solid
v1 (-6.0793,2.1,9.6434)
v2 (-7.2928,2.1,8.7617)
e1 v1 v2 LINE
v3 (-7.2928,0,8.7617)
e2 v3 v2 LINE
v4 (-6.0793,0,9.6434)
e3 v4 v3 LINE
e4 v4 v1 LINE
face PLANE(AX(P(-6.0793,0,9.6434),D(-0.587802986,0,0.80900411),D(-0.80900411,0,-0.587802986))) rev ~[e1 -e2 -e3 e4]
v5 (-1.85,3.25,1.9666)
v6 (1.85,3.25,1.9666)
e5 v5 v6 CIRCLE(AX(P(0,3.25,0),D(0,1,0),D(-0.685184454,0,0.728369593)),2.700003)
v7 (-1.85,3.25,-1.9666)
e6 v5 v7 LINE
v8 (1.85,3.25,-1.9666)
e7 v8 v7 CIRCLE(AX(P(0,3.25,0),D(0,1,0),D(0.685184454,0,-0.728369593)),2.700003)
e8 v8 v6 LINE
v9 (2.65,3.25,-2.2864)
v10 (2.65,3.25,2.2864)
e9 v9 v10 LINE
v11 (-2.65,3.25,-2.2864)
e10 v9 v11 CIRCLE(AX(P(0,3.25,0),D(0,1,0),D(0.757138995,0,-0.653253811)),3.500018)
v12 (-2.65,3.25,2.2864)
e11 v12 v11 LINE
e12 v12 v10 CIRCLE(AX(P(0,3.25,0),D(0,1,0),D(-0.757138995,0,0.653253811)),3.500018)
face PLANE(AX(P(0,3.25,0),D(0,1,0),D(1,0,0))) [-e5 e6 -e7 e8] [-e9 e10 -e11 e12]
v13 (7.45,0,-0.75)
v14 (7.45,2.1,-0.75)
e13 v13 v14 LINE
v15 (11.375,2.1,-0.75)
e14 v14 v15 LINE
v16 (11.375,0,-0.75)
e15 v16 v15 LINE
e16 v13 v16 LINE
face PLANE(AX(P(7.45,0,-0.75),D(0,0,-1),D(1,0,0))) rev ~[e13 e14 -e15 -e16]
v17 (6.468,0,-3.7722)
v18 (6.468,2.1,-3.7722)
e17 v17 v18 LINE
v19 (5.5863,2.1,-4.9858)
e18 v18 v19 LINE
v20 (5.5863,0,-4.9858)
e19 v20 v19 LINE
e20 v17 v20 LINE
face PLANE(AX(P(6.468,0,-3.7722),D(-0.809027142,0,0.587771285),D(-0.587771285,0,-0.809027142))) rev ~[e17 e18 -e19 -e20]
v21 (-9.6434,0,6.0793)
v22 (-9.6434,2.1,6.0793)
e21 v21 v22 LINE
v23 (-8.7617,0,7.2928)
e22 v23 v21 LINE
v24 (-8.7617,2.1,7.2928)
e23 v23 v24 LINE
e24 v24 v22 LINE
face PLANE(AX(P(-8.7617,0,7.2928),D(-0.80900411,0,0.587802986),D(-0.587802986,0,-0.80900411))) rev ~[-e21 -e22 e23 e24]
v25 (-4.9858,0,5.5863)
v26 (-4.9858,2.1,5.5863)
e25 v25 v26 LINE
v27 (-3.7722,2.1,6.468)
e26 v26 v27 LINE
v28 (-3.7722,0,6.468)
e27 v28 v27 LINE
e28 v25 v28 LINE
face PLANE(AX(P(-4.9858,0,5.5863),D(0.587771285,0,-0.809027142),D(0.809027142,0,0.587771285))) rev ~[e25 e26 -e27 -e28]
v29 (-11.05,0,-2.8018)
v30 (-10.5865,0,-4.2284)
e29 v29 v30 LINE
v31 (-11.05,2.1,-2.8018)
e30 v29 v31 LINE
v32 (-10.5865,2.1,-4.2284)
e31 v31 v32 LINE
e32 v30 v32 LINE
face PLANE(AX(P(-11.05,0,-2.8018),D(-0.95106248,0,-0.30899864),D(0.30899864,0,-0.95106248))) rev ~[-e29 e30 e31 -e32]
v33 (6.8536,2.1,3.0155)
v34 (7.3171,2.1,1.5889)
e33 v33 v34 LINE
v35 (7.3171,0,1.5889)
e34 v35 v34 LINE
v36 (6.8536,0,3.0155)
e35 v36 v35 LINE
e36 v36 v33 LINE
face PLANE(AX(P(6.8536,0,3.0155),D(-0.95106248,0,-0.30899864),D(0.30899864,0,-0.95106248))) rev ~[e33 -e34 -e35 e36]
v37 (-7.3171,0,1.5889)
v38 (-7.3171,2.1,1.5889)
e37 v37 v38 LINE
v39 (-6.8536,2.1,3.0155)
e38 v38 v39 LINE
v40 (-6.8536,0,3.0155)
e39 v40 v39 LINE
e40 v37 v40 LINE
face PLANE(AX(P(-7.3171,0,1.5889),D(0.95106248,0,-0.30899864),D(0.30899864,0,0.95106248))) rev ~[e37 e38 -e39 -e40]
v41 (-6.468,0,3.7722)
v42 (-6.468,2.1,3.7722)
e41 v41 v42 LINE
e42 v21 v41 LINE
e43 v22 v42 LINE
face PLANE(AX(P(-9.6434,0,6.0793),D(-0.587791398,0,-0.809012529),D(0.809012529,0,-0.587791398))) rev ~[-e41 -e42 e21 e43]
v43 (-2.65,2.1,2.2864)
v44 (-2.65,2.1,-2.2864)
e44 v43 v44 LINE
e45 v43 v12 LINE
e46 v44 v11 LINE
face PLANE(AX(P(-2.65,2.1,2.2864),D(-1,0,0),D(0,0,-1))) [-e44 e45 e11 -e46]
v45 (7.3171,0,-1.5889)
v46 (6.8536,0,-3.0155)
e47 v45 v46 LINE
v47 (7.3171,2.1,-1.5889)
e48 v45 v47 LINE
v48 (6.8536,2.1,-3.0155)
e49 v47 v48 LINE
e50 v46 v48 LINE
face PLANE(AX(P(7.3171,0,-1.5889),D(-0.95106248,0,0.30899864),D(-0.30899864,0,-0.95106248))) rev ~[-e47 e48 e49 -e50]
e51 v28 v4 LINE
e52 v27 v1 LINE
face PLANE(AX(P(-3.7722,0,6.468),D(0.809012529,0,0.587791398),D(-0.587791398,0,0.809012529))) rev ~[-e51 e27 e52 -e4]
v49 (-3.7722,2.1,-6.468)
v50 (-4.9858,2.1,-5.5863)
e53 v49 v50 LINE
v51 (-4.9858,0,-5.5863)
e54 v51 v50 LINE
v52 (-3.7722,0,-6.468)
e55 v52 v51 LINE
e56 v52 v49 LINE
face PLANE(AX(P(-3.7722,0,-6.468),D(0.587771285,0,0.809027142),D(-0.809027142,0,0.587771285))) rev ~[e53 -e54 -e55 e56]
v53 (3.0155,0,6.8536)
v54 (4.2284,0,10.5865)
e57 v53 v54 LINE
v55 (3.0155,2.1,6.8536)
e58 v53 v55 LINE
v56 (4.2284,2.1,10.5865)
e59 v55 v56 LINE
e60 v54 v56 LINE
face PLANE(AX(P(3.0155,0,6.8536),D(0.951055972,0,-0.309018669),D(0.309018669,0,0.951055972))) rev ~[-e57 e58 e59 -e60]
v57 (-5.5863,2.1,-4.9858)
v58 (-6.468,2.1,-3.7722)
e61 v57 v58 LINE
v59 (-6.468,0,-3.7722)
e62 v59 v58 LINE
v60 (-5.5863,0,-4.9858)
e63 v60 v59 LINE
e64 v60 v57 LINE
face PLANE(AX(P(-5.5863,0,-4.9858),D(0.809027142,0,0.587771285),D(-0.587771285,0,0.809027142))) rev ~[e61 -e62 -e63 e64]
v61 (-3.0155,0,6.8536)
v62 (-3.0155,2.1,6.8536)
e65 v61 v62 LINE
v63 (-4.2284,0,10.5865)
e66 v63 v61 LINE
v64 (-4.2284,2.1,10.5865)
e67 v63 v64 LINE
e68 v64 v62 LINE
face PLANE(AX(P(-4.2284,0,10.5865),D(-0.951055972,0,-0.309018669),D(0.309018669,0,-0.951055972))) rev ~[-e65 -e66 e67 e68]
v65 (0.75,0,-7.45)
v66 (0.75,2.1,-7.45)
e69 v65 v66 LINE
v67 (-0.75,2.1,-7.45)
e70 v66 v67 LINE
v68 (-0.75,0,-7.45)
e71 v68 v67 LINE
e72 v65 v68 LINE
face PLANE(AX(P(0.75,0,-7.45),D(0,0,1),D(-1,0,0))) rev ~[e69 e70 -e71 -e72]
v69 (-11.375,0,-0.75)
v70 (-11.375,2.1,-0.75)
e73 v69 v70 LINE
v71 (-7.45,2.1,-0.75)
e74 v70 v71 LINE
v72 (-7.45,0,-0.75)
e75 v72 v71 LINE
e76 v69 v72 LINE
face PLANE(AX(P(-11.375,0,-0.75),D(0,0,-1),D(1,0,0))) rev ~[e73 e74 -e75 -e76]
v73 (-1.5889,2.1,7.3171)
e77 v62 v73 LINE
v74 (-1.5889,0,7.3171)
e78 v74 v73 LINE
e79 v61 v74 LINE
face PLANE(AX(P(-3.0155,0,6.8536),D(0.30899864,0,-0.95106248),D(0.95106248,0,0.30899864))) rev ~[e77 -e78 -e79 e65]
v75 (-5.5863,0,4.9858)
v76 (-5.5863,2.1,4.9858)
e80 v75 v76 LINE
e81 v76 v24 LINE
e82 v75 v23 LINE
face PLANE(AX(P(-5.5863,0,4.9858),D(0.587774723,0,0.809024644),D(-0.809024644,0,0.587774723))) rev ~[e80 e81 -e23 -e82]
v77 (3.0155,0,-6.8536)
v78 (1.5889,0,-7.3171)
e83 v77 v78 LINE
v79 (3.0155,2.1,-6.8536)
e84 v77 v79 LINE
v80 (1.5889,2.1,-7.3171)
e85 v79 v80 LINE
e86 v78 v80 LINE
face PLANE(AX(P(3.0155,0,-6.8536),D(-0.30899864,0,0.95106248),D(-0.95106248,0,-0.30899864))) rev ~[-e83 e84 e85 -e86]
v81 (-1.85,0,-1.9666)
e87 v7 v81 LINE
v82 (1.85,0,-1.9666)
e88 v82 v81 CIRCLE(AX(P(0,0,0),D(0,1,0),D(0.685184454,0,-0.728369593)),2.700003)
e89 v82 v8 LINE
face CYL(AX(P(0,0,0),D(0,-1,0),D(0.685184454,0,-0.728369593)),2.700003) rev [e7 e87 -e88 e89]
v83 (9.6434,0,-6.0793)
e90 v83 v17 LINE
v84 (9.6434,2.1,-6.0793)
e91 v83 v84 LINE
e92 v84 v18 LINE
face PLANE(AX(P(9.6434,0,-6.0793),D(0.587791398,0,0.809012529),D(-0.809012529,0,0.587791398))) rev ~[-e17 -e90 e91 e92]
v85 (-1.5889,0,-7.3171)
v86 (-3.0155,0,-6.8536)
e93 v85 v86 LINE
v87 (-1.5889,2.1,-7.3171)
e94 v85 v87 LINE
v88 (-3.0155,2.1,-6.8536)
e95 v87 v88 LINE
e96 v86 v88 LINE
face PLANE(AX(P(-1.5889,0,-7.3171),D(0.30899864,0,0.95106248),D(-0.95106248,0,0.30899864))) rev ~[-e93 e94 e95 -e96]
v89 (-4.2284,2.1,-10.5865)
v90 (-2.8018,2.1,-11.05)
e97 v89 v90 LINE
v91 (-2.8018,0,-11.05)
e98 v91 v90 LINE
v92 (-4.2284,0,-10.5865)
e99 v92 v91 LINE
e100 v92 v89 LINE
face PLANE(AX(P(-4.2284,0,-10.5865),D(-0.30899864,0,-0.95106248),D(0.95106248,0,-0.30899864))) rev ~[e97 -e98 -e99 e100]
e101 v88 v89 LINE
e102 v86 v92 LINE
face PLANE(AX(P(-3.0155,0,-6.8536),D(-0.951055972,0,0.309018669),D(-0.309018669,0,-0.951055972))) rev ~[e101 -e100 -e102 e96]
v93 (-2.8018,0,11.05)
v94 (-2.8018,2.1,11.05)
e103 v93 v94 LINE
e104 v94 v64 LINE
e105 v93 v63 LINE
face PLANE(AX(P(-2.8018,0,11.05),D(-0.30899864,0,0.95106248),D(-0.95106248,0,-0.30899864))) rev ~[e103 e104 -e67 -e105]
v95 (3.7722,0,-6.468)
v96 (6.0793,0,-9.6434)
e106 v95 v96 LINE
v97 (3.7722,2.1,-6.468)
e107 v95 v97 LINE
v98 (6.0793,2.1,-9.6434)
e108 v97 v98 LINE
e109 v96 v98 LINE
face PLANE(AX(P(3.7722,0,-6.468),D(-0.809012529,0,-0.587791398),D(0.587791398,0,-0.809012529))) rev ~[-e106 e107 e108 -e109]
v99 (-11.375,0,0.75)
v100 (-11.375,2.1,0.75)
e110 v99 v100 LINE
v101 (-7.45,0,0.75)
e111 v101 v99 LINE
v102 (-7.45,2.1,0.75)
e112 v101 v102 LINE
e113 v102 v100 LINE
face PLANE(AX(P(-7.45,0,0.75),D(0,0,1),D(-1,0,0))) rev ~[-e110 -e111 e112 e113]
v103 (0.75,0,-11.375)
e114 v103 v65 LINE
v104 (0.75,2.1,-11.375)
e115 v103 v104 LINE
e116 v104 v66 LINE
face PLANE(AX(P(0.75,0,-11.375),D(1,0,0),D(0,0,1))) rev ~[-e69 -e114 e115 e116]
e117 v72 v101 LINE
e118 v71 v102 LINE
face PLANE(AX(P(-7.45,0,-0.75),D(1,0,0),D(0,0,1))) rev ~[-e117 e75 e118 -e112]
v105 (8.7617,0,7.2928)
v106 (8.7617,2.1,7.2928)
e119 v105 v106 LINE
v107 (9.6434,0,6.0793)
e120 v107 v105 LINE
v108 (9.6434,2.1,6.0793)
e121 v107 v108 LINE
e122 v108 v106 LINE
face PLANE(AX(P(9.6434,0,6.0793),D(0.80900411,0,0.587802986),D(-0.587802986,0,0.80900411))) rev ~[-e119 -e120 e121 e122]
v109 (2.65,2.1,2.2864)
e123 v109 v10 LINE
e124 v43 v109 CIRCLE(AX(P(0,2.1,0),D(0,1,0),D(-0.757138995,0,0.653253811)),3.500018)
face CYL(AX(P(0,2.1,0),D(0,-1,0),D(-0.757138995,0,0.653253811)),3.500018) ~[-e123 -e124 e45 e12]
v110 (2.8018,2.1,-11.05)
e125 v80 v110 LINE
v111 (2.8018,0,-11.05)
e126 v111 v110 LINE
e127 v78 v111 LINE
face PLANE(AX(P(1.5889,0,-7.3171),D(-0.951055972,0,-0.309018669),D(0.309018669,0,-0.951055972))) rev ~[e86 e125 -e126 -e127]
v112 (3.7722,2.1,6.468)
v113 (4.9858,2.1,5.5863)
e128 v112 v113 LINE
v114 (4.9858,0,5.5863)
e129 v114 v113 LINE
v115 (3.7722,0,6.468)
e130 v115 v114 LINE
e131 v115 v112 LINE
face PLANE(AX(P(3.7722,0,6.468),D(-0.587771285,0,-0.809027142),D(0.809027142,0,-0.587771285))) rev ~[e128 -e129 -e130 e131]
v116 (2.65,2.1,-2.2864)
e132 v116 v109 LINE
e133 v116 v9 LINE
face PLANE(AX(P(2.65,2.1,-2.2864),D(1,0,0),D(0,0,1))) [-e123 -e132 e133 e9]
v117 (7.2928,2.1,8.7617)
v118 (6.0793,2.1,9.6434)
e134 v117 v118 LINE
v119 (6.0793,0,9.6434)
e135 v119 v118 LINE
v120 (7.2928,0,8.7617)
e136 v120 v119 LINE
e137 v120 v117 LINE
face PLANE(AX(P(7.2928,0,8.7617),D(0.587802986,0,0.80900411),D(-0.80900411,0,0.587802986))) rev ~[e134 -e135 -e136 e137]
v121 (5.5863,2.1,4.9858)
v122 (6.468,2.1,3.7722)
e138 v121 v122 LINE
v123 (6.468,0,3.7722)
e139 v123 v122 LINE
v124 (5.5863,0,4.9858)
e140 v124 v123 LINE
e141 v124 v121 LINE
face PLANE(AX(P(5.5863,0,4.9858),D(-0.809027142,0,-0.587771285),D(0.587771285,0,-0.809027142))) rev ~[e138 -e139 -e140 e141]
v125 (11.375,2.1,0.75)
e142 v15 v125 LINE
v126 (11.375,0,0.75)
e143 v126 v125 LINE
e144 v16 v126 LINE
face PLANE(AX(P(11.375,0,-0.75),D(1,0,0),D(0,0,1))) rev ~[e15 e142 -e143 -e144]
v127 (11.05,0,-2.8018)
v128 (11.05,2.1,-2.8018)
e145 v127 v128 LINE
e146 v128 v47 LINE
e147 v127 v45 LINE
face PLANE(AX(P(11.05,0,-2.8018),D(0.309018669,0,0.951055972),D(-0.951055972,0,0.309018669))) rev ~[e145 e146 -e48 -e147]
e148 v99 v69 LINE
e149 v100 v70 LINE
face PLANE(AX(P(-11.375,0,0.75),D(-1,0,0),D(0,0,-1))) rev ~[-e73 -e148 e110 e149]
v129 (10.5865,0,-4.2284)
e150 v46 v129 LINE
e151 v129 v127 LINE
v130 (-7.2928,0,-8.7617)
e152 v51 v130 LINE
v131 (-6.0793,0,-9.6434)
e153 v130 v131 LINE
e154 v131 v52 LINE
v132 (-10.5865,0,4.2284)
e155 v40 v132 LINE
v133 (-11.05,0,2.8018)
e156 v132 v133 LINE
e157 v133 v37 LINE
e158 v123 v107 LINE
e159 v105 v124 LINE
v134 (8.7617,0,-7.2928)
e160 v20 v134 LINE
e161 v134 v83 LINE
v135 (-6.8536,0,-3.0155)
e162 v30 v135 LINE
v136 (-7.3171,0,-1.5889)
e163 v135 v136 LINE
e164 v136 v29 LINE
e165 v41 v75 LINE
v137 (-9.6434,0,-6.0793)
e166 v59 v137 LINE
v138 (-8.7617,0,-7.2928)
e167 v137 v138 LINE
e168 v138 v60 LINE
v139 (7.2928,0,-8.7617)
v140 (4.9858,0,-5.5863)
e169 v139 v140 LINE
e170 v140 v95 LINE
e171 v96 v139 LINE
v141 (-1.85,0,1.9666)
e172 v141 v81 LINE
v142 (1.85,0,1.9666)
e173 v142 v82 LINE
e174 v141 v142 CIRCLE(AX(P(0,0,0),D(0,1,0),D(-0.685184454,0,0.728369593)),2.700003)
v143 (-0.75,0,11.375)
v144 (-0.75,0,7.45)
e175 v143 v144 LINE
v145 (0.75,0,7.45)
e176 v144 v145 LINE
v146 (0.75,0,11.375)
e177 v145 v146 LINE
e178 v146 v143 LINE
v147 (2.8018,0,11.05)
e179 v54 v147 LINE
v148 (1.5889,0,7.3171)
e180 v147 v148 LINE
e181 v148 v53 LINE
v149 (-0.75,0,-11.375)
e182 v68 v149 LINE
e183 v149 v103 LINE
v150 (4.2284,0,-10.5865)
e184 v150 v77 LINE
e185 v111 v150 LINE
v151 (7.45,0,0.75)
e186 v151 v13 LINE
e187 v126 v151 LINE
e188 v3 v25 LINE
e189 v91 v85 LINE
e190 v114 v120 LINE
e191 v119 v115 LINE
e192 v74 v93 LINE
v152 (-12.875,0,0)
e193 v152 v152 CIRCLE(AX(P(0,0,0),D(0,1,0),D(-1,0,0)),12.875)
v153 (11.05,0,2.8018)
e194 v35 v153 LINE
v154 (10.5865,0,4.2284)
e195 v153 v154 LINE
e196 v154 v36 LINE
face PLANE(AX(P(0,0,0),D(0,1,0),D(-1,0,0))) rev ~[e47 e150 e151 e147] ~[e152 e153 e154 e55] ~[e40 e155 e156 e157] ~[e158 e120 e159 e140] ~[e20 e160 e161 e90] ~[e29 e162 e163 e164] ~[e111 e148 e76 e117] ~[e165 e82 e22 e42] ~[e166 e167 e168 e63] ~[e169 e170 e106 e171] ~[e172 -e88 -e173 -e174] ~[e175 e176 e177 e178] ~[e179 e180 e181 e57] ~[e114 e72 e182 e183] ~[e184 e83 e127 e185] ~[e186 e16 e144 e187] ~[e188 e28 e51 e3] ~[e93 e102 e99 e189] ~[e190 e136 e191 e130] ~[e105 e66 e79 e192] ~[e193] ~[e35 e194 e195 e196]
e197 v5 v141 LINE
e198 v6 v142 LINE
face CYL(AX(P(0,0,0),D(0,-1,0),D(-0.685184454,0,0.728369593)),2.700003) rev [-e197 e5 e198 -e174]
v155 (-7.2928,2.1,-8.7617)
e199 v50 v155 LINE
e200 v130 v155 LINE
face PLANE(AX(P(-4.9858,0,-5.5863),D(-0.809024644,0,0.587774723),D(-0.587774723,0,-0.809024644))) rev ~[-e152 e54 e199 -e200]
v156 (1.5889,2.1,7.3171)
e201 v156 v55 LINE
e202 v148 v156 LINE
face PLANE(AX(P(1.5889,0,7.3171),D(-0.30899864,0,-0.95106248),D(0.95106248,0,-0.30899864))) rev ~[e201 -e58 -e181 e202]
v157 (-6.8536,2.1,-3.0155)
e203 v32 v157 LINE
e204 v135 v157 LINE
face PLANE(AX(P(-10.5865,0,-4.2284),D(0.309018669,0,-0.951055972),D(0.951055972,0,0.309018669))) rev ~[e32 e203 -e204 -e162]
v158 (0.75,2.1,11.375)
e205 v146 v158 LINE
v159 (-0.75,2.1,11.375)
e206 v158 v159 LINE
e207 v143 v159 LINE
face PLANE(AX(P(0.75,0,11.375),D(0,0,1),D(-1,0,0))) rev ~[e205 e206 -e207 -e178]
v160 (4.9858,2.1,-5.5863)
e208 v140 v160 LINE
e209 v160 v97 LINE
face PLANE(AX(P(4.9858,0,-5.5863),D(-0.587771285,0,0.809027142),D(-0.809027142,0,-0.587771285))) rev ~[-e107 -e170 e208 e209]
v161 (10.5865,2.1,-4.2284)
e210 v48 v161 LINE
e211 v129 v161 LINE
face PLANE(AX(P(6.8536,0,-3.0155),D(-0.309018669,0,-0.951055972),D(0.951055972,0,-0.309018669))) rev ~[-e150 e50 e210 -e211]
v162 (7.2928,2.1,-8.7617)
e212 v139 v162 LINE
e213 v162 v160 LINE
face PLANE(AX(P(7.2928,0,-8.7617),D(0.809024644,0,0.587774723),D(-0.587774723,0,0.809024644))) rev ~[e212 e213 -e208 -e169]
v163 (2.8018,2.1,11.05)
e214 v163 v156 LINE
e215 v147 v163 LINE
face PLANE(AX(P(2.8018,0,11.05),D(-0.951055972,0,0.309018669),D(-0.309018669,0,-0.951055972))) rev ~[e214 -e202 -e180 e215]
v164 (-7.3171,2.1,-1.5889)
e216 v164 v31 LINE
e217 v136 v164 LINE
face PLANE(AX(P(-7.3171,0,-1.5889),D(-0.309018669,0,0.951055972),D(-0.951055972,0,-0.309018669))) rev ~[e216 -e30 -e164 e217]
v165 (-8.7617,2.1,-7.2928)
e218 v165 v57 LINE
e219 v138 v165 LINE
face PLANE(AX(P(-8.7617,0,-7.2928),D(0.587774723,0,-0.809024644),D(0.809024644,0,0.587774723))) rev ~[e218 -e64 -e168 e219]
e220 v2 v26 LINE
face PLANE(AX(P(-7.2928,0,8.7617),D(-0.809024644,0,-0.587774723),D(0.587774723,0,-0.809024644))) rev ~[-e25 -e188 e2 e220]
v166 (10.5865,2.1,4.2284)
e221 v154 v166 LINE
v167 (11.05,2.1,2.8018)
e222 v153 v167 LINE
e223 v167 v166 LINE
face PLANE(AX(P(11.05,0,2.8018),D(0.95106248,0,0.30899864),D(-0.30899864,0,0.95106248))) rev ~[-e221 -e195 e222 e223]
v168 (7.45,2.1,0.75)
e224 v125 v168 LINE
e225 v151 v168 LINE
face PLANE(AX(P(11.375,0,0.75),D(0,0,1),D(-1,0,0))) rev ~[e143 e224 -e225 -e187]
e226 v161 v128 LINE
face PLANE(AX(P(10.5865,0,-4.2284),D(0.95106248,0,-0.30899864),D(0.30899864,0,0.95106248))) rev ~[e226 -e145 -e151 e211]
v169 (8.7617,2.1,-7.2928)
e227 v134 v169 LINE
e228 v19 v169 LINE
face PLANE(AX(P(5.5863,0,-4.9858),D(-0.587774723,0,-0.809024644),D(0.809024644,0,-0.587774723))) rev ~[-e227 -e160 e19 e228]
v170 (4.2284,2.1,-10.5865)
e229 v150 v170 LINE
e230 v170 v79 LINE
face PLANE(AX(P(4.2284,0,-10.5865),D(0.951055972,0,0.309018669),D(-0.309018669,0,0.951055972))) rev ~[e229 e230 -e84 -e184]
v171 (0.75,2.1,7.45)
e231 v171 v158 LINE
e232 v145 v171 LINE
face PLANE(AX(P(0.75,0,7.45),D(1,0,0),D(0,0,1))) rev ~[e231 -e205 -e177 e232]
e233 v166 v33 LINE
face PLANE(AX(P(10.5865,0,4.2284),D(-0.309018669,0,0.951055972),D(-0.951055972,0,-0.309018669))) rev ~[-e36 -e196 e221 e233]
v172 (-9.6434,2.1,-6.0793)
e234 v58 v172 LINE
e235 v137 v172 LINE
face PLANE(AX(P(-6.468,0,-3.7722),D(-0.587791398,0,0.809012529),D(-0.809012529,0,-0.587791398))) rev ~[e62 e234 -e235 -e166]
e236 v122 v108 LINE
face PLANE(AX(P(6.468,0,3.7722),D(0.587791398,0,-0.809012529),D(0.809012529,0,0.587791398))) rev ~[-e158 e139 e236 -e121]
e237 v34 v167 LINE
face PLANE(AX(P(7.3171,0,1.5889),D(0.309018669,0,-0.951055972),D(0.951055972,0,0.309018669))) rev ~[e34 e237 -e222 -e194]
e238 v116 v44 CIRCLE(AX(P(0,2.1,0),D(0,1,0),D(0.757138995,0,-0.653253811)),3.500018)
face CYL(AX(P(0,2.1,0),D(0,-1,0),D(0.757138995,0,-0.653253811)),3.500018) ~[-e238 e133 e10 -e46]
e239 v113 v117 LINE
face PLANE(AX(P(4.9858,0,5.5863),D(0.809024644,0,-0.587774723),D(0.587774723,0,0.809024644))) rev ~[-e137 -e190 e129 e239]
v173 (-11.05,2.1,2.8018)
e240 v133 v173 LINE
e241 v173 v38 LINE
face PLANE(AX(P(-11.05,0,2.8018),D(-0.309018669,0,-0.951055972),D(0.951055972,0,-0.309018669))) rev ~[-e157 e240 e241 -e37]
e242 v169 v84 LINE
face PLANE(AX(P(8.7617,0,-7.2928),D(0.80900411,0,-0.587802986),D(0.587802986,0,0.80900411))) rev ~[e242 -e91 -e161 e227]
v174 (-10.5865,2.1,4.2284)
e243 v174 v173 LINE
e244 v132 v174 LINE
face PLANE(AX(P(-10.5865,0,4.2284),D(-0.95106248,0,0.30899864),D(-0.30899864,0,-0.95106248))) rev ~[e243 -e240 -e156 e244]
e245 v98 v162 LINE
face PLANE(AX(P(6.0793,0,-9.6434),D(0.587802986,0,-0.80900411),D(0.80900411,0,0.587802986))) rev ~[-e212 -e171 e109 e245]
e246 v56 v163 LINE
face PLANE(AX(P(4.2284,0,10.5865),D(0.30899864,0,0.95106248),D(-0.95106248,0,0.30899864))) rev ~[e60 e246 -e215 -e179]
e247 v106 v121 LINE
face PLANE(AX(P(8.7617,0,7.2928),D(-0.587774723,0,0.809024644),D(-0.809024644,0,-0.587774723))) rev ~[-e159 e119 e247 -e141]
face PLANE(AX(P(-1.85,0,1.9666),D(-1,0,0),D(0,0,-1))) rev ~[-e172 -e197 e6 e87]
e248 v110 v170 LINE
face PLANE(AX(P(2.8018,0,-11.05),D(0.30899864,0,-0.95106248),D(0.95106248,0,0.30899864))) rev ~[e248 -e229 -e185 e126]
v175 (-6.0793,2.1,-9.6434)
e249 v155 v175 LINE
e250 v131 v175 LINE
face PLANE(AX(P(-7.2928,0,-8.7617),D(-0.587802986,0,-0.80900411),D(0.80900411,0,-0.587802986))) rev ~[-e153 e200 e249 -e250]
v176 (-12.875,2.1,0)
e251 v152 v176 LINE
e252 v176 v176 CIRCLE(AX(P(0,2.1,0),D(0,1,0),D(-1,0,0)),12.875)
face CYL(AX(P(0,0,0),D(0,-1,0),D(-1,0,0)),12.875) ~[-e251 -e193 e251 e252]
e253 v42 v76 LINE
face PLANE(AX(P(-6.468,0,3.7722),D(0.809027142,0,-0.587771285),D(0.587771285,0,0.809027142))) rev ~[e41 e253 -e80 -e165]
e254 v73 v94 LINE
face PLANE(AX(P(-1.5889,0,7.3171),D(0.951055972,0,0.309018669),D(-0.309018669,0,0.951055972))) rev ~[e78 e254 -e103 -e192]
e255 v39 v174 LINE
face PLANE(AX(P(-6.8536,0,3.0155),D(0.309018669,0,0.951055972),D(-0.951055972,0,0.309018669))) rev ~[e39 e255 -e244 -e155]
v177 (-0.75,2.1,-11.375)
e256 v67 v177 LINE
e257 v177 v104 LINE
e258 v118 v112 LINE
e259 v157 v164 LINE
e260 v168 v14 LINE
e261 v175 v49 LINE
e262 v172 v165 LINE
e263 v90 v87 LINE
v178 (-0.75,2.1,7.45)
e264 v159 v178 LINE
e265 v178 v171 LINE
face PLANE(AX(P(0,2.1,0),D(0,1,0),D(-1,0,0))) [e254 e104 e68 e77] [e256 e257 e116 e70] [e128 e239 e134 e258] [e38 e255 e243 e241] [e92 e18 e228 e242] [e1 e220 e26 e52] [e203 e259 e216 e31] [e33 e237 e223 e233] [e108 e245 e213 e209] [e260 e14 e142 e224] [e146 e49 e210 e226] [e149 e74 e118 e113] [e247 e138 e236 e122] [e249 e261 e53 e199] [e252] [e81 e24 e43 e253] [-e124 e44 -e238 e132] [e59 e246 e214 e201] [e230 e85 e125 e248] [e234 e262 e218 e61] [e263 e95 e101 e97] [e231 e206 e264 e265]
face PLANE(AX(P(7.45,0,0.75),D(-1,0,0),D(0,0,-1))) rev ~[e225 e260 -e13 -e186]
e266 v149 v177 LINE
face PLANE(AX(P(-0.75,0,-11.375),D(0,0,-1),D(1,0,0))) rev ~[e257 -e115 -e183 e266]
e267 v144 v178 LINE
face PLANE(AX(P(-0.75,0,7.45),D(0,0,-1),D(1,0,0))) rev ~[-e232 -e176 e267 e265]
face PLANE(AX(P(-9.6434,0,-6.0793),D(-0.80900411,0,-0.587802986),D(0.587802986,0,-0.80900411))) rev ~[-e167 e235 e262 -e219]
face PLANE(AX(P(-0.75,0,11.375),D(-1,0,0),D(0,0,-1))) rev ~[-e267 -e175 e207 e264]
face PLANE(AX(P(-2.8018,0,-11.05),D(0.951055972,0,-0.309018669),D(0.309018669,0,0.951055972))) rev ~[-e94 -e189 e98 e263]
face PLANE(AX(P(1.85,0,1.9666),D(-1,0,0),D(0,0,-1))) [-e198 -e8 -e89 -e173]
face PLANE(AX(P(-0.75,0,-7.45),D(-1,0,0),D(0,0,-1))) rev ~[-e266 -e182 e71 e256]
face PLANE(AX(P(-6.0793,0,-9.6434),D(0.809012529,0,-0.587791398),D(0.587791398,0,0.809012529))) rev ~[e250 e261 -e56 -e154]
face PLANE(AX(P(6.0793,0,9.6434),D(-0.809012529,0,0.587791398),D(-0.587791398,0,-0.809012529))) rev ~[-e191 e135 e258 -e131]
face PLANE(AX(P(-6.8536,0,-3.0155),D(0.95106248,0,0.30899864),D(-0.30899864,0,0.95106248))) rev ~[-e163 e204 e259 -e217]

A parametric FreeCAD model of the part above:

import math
import FreeCAD as App
import Part
import Sketcher
Q = App.Units.Quantity

doc = App.newDocument("Part")
params = doc.addObject("Spreadsheet::Sheet", "Params")
for row, (alias, value) in enumerate([
    ("sketch1_radius", "2.7 mm"),
    ("sketch1_diameter", "25.75 mm"),
    ("sketch1_width", "1.5 mm"),
    ("sketch1_length", "1.5 mm"),
    ("pad1_length", "2.1 mm"),
    ("sketch2_radius", "3.5 mm"),
    ("sketch2_radius2", "2.7 mm"),
    ("pad2_length", "1.15 mm"),
], start=1):
    params.set(f"A{row}", alias)
    params.set(f"B{row}", "=" + value)
    params.setAlias(f"B{row}", alias)

body = doc.addObject("PartDesign::Body", "Body")

sketch1 = body.newObject("Sketcher::SketchObject", "Sketch")
sketch1.AttachmentSupport = (doc.getObject("XZ_Plane"), [""])
sketch1.MapMode = "FlatFace"
sketch1.addGeometry(Part.Circle(App.Vector(0, 0, 0), App.Vector(0, 0, 1), 12.875), False)
sketch1.addGeometry(Part.LineSegment(App.Vector(6.0793, -9.6434, 0), App.Vector(7.2928, -8.7617, 0)), False)
sketch1.addGeometry(Part.LineSegment(App.Vector(7.2928, -8.7617, 0), App.Vector(4.9858, -5.5863, 0)), False)
sketch1.addGeometry(Part.LineSegment(App.Vector(4.9858, -5.5863, 0), App.Vector(3.7722, -6.468, 0)), False)
sketch1.addGeometry(Part.LineSegment(App.Vector(3.7722, -6.468, 0), App.Vector(6.0793, -9.6434, 0)), False)
sketch1.addGeometry(Part.LineSegment(App.Vector(2.8018, -11.05, 0), App.Vector(4.2284, -10.5865, 0)), False)
sketch1.addGeometry(Part.LineSegment(App.Vector(4.2284, -10.5865, 0), App.Vector(3.0155, -6.8536, 0)), False)
sketch1.addGeometry(Part.LineSegment(App.Vector(3.0155, -6.8536, 0), App.Vector(1.5889, -7.3171, 0)), False)
sketch1.addGeometry(Part.LineSegment(App.Vector(1.5889, -7.3171, 0), App.Vector(2.8018, -11.05, 0)), False)
sketch1.addGeometry(Part.LineSegment(App.Vector(-0.75, -11.375, 0), App.Vector(0.75, -11.375, 0)), False)
sketch1.addGeometry(Part.LineSegment(App.Vector(0.75, -11.375, 0), App.Vector(0.75, -7.45, 0)), False)
sketch1.addGeometry(Part.LineSegment(App.Vector(0.75, -7.45, 0), App.Vector(-0.75, -7.45, 0)), False)
sketch1.addGeometry(Part.LineSegment(App.Vector(-0.75, -7.45, 0), App.Vector(-0.75, -11.375, 0)), False)
sketch1.addGeometry(Part.LineSegment(App.Vector(8.7617, -7.2928, 0), App.Vector(9.6434, -6.0793, 0)), False)
sketch1.addGeometry(Part.LineSegment(App.Vector(9.6434, -6.0793, 0), App.Vector(6.468, -3.7722, 0)), False)
sketch1.addGeometry(Part.LineSegment(App.Vector(6.468, -3.7722, 0), App.Vector(5.5863, -4.9858, 0)), False)
sketch1.addGeometry(Part.LineSegment(App.Vector(5.5863, -4.9858, 0), App.Vector(8.7617, -7.2928, 0)), False)
sketch1.addGeometry(Part.LineSegment(App.Vector(10.5865, -4.2284, 0), App.Vector(11.05, -2.8018, 0)), False)
sketch1.addGeometry(Part.LineSegment(App.Vector(11.05, -2.8018, 0), App.Vector(7.3171, -1.5889, 0)), False)
sketch1.addGeometry(Part.LineSegment(App.Vector(7.3171, -1.5889, 0), App.Vector(6.8536, -3.0155, 0)), False)
sketch1.addGeometry(Part.LineSegment(App.Vector(6.8536, -3.0155, 0), App.Vector(10.5865, -4.2284, 0)), False)
sketch1.addGeometry(Part.LineSegment(App.Vector(11.375, -0.75, 0), App.Vector(11.375, 0.75, 0)), False)
sketch1.addGeometry(Part.LineSegment(App.Vector(11.375, 0.75, 0), App.Vector(7.45, 0.75, 0)), False)
sketch1.addGeometry(Part.LineSegment(App.Vector(7.45, 0.75, 0), App.Vector(7.45, -0.75, 0)), False)
sketch1.addGeometry(Part.LineSegment(App.Vector(7.45, -0.75, 0), App.Vector(11.375, -0.75, 0)), False)
sketch1.addGeometry(Part.ArcOfCircle(Part.Circle(App.Vector(0, 0, 0), App.Vector(0, 0, 1), 2.700003), math.radians(-133.250115), math.radians(-46.749885)), False)
sketch1.addGeometry(Part.LineSegment(App.Vector(1.85, -1.9666, 0), App.Vector(1.85, 1.9666, 0)), False)
sketch1.addGeometry(Part.ArcOfCircle(Part.Circle(App.Vector(0, 0, 0), App.Vector(0, 0, 1), 2.700003), math.radians(46.749885), math.radians(133.250115)), False)
sketch1.addGeometry(Part.LineSegment(App.Vector(-1.85, 1.9666, 0), App.Vector(-1.85, -1.9666, 0)), False)
sketch1.addGeometry(Part.LineSegment(App.Vector(-4.2284, -10.5865, 0), App.Vector(-2.8018, -11.05, 0)), False)
sketch1.addGeometry(Part.LineSegment(App.Vector(-2.8018, -11.05, 0), App.Vector(-1.5889, -7.3171, 0)), False)
sketch1.addGeometry(Part.LineSegment(App.Vector(-1.5889, -7.3171, 0), App.Vector(-3.0155, -6.8536, 0)), False)
sketch1.addGeometry(Part.LineSegment(App.Vector(-3.0155, -6.8536, 0), App.Vector(-4.2284, -10.5865, 0)), False)
sketch1.addGeometry(Part.LineSegment(App.Vector(-7.2928, -8.7617, 0), App.Vector(-6.0793, -9.6434, 0)), False)
sketch1.addGeometry(Part.LineSegment(App.Vector(-6.0793, -9.6434, 0), App.Vector(-3.7722, -6.468, 0)), False)
sketch1.addGeometry(Part.LineSegment(App.Vector(-3.7722, -6.468, 0), App.Vector(-4.9858, -5.5863, 0)), False)
sketch1.addGeometry(Part.LineSegment(App.Vector(-4.9858, -5.5863, 0), App.Vector(-7.2928, -8.7617, 0)), False)
sketch1.addGeometry(Part.LineSegment(App.Vector(-9.6434, -6.0793, 0), App.Vector(-8.7617, -7.2928, 0)), False)
sketch1.addGeometry(Part.LineSegment(App.Vector(-8.7617, -7.2928, 0), App.Vector(-5.5863, -4.9858, 0)), False)
sketch1.addGeometry(Part.LineSegment(App.Vector(-5.5863, -4.9858, 0), App.Vector(-6.468, -3.7722, 0)), False)
sketch1.addGeometry(Part.LineSegment(App.Vector(-6.468, -3.7722, 0), App.Vector(-9.6434, -6.0793, 0)), False)
sketch1.addGeometry(Part.LineSegment(App.Vector(-11.05, -2.8018, 0), App.Vector(-10.5865, -4.2284, 0)), False)
sketch1.addGeometry(Part.LineSegment(App.Vector(-10.5865, -4.2284, 0), App.Vector(-6.8536, -3.0155, 0)), False)
sketch1.addGeometry(Part.LineSegment(App.Vector(-6.8536, -3.0155, 0), App.Vector(-7.3171, -1.5889, 0)), False)
sketch1.addGeometry(Part.LineSegment(App.Vector(-7.3171, -1.5889, 0), App.Vector(-11.05, -2.8018, 0)), False)
sketch1.addGeometry(Part.LineSegment(App.Vector(-7.45, -0.75, 0), App.Vector(-7.45, 0.75, 0)), False)
sketch1.addGeometry(Part.LineSegment(App.Vector(-7.45, 0.75, 0), App.Vector(-11.375, 0.75, 0)), False)
sketch1.addGeometry(Part.LineSegment(App.Vector(-11.375, 0.75, 0), App.Vector(-11.375, -0.75, 0)), False)
sketch1.addGeometry(Part.LineSegment(App.Vector(-11.375, -0.75, 0), App.Vector(-7.45, -0.75, 0)), False)
sketch1.addGeometry(Part.LineSegment(App.Vector(11.05, 2.8018, 0), App.Vector(10.5865, 4.2284, 0)), False)
sketch1.addGeometry(Part.LineSegment(App.Vector(10.5865, 4.2284, 0), App.Vector(6.8536, 3.0155, 0)), False)
sketch1.addGeometry(Part.LineSegment(App.Vector(6.8536, 3.0155, 0), App.Vector(7.3171, 1.5889, 0)), False)
sketch1.addGeometry(Part.LineSegment(App.Vector(7.3171, 1.5889, 0), App.Vector(11.05, 2.8018, 0)), False)
sketch1.addGeometry(Part.LineSegment(App.Vector(9.6434, 6.0793, 0), App.Vector(8.7617, 7.2928, 0)), False)
sketch1.addGeometry(Part.LineSegment(App.Vector(8.7617, 7.2928, 0), App.Vector(5.5863, 4.9858, 0)), False)
sketch1.addGeometry(Part.LineSegment(App.Vector(5.5863, 4.9858, 0), App.Vector(6.468, 3.7722, 0)), False)
sketch1.addGeometry(Part.LineSegment(App.Vector(6.468, 3.7722, 0), App.Vector(9.6434, 6.0793, 0)), False)
sketch1.addGeometry(Part.LineSegment(App.Vector(7.2928, 8.7617, 0), App.Vector(6.0793, 9.6434, 0)), False)
sketch1.addGeometry(Part.LineSegment(App.Vector(6.0793, 9.6434, 0), App.Vector(3.7722, 6.468, 0)), False)
sketch1.addGeometry(Part.LineSegment(App.Vector(3.7722, 6.468, 0), App.Vector(4.9858, 5.5863, 0)), False)
sketch1.addGeometry(Part.LineSegment(App.Vector(4.9858, 5.5863, 0), App.Vector(7.2928, 8.7617, 0)), False)
sketch1.addGeometry(Part.LineSegment(App.Vector(4.2284, 10.5865, 0), App.Vector(2.8018, 11.05, 0)), False)
sketch1.addGeometry(Part.LineSegment(App.Vector(2.8018, 11.05, 0), App.Vector(1.5889, 7.3171, 0)), False)
sketch1.addGeometry(Part.LineSegment(App.Vector(1.5889, 7.3171, 0), App.Vector(3.0155, 6.8536, 0)), False)
sketch1.addGeometry(Part.LineSegment(App.Vector(3.0155, 6.8536, 0), App.Vector(4.2284, 10.5865, 0)), False)
sketch1.addGeometry(Part.LineSegment(App.Vector(0.75, 11.375, 0), App.Vector(-0.75, 11.375, 0)), False)
sketch1.addGeometry(Part.LineSegment(App.Vector(-0.75, 11.375, 0), App.Vector(-0.75, 7.45, 0)), False)
sketch1.addGeometry(Part.LineSegment(App.Vector(-0.75, 7.45, 0), App.Vector(0.75, 7.45, 0)), False)
sketch1.addGeometry(Part.LineSegment(App.Vector(0.75, 7.45, 0), App.Vector(0.75, 11.375, 0)), False)
sketch1.addGeometry(Part.LineSegment(App.Vector(-10.5865, 4.2284, 0), App.Vector(-11.05, 2.8018, 0)), False)
sketch1.addGeometry(Part.LineSegment(App.Vector(-11.05, 2.8018, 0), App.Vector(-7.3171, 1.5889, 0)), False)
sketch1.addGeometry(Part.LineSegment(App.Vector(-7.3171, 1.5889, 0), App.Vector(-6.8536, 3.0155, 0)), False)
sketch1.addGeometry(Part.LineSegment(App.Vector(-6.8536, 3.0155, 0), App.Vector(-10.5865, 4.2284, 0)), False)
sketch1.addGeometry(Part.LineSegment(App.Vector(-8.7617, 7.2928, 0), App.Vector(-9.6434, 6.0793, 0)), False)
sketch1.addGeometry(Part.LineSegment(App.Vector(-9.6434, 6.0793, 0), App.Vector(-6.468, 3.7722, 0)), False)
sketch1.addGeometry(Part.LineSegment(App.Vector(-6.468, 3.7722, 0), App.Vector(-5.5863, 4.9858, 0)), False)
sketch1.addGeometry(Part.LineSegment(App.Vector(-5.5863, 4.9858, 0), App.Vector(-8.7617, 7.2928, 0)), False)
sketch1.addGeometry(Part.LineSegment(App.Vector(-2.8018, 11.05, 0), App.Vector(-4.2284, 10.5865, 0)), False)
sketch1.addGeometry(Part.LineSegment(App.Vector(-4.2284, 10.5865, 0), App.Vector(-3.0155, 6.8536, 0)), False)
sketch1.addGeometry(Part.LineSegment(App.Vector(-3.0155, 6.8536, 0), App.Vector(-1.5889, 7.3171, 0)), False)
sketch1.addGeometry(Part.LineSegment(App.Vector(-1.5889, 7.3171, 0), App.Vector(-2.8018, 11.05, 0)), False)
sketch1.addGeometry(Part.LineSegment(App.Vector(-6.0793, 9.6434, 0), App.Vector(-7.2928, 8.7617, 0)), False)
sketch1.addGeometry(Part.LineSegment(App.Vector(-7.2928, 8.7617, 0), App.Vector(-4.9858, 5.5863, 0)), False)
sketch1.addGeometry(Part.LineSegment(App.Vector(-4.9858, 5.5863, 0), App.Vector(-3.7722, 6.468, 0)), False)
sketch1.addGeometry(Part.LineSegment(App.Vector(-3.7722, 6.468, 0), App.Vector(-6.0793, 9.6434, 0)), False)
sketch1.addConstraint(Sketcher.Constraint("Coincident", 1, 2, 2, 1))
sketch1.addConstraint(Sketcher.Constraint("Coincident", 2, 2, 3, 1))
sketch1.addConstraint(Sketcher.Constraint("Coincident", 3, 2, 4, 1))
sketch1.addConstraint(Sketcher.Constraint("Coincident", 4, 2, 1, 1))
sketch1.addConstraint(Sketcher.Constraint("Coincident", 5, 2, 6, 1))
sketch1.addConstraint(Sketcher.Constraint("Coincident", 6, 2, 7, 1))
sketch1.addConstraint(Sketcher.Constraint("Coincident", 7, 2, 8, 1))
sketch1.addConstraint(Sketcher.Constraint("Coincident", 8, 2, 5, 1))
sketch1.addConstraint(Sketcher.Constraint("Coincident", 9, 2, 10, 1))
sketch1.addConstraint(Sketcher.Constraint("Coincident", 10, 2, 11, 1))
sketch1.addConstraint(Sketcher.Constraint("Coincident", 11, 2, 12, 1))
sketch1.addConstraint(Sketcher.Constraint("Coincident", 12, 2, 9, 1))
sketch1.addConstraint(Sketcher.Constraint("Coincident", 13, 2, 14, 1))
sketch1.addConstraint(Sketcher.Constraint("Coincident", 14, 2, 15, 1))
sketch1.addConstraint(Sketcher.Constraint("Coincident", 15, 2, 16, 1))
sketch1.addConstraint(Sketcher.Constraint("Coincident", 16, 2, 13, 1))
sketch1.addConstraint(Sketcher.Constraint("Coincident", 17, 2, 18, 1))
sketch1.addConstraint(Sketcher.Constraint("Coincident", 18, 2, 19, 1))
sketch1.addConstraint(Sketcher.Constraint("Coincident", 19, 2, 20, 1))
sketch1.addConstraint(Sketcher.Constraint("Coincident", 20, 2, 17, 1))
sketch1.addConstraint(Sketcher.Constraint("Coincident", 21, 2, 22, 1))
sketch1.addConstraint(Sketcher.Constraint("Coincident", 22, 2, 23, 1))
sketch1.addConstraint(Sketcher.Constraint("Coincident", 23, 2, 24, 1))
sketch1.addConstraint(Sketcher.Constraint("Coincident", 24, 2, 21, 1))
sketch1.addConstraint(Sketcher.Constraint("Coincident", 25, 2, 26, 1))
sketch1.addConstraint(Sketcher.Constraint("Coincident", 26, 2, 27, 1))
sketch1.addConstraint(Sketcher.Constraint("Coincident", 27, 2, 28, 1))
sketch1.addConstraint(Sketcher.Constraint("Coincident", 28, 2, 25, 1))
sketch1.addConstraint(Sketcher.Constraint("Coincident", 29, 2, 30, 1))
sketch1.addConstraint(Sketcher.Constraint("Coincident", 30, 2, 31, 1))
sketch1.addConstraint(Sketcher.Constraint("Coincident", 31, 2, 32, 1))
sketch1.addConstraint(Sketcher.Constraint("Coincident", 32, 2, 29, 1))
sketch1.addConstraint(Sketcher.Constraint("Coincident", 33, 2, 34, 1))
sketch1.addConstraint(Sketcher.Constraint("Coincident", 34, 2, 35, 1))
sketch1.addConstraint(Sketcher.Constraint("Coincident", 35, 2, 36, 1))
sketch1.addConstraint(Sketcher.Constraint("Coincident", 36, 2, 33, 1))
sketch1.addConstraint(Sketcher.Constraint("Coincident", 37, 2, 38, 1))
sketch1.addConstraint(Sketcher.Constraint("Coincident", 38, 2, 39, 1))
sketch1.addConstraint(Sketcher.Constraint("Coincident", 39, 2, 40, 1))
sketch1.addConstraint(Sketcher.Constraint("Coincident", 40, 2, 37, 1))
sketch1.addConstraint(Sketcher.Constraint("Coincident", 41, 2, 42, 1))
sketch1.addConstraint(Sketcher.Constraint("Coincident", 42, 2, 43, 1))
sketch1.addConstraint(Sketcher.Constraint("Coincident", 43, 2, 44, 1))
sketch1.addConstraint(Sketcher.Constraint("Coincident", 44, 2, 41, 1))
sketch1.addConstraint(Sketcher.Constraint("Coincident", 45, 2, 46, 1))
sketch1.addConstraint(Sketcher.Constraint("Coincident", 46, 2, 47, 1))
sketch1.addConstraint(Sketcher.Constraint("Coincident", 47, 2, 48, 1))
sketch1.addConstraint(Sketcher.Constraint("Coincident", 48, 2, 45, 1))
sketch1.addConstraint(Sketcher.Constraint("Coincident", 49, 2, 50, 1))
sketch1.addConstraint(Sketcher.Constraint("Coincident", 50, 2, 51, 1))
sketch1.addConstraint(Sketcher.Constraint("Coincident", 51, 2, 52, 1))
sketch1.addConstraint(Sketcher.Constraint("Coincident", 52, 2, 49, 1))
sketch1.addConstraint(Sketcher.Constraint("Coincident", 53, 2, 54, 1))
sketch1.addConstraint(Sketcher.Constraint("Coincident", 54, 2, 55, 1))
sketch1.addConstraint(Sketcher.Constraint("Coincident", 55, 2, 56, 1))
sketch1.addConstraint(Sketcher.Constraint("Coincident", 56, 2, 53, 1))
sketch1.addConstraint(Sketcher.Constraint("Coincident", 57, 2, 58, 1))
sketch1.addConstraint(Sketcher.Constraint("Coincident", 58, 2, 59, 1))
sketch1.addConstraint(Sketcher.Constraint("Coincident", 59, 2, 60, 1))
sketch1.addConstraint(Sketcher.Constraint("Coincident", 60, 2, 57, 1))
sketch1.addConstraint(Sketcher.Constraint("Coincident", 61, 2, 62, 1))
sketch1.addConstraint(Sketcher.Constraint("Coincident", 62, 2, 63, 1))
sketch1.addConstraint(Sketcher.Constraint("Coincident", 63, 2, 64, 1))
sketch1.addConstraint(Sketcher.Constraint("Coincident", 64, 2, 61, 1))
sketch1.addConstraint(Sketcher.Constraint("Coincident", 65, 2, 66, 1))
sketch1.addConstraint(Sketcher.Constraint("Coincident", 66, 2, 67, 1))
sketch1.addConstraint(Sketcher.Constraint("Coincident", 67, 2, 68, 1))
sketch1.addConstraint(Sketcher.Constraint("Coincident", 68, 2, 65, 1))
sketch1.addConstraint(Sketcher.Constraint("Coincident", 69, 2, 70, 1))
sketch1.addConstraint(Sketcher.Constraint("Coincident", 70, 2, 71, 1))
sketch1.addConstraint(Sketcher.Constraint("Coincident", 71, 2, 72, 1))
sketch1.addConstraint(Sketcher.Constraint("Coincident", 72, 2, 69, 1))
sketch1.addConstraint(Sketcher.Constraint("Coincident", 73, 2, 74, 1))
sketch1.addConstraint(Sketcher.Constraint("Coincident", 74, 2, 75, 1))
sketch1.addConstraint(Sketcher.Constraint("Coincident", 75, 2, 76, 1))
sketch1.addConstraint(Sketcher.Constraint("Coincident", 76, 2, 73, 1))
sketch1.addConstraint(Sketcher.Constraint("Coincident", 77, 2, 78, 1))
sketch1.addConstraint(Sketcher.Constraint("Coincident", 78, 2, 79, 1))
sketch1.addConstraint(Sketcher.Constraint("Coincident", 79, 2, 80, 1))
sketch1.addConstraint(Sketcher.Constraint("Coincident", 80, 2, 77, 1))
sketch1.addConstraint(Sketcher.Constraint("Coincident", 81, 2, 82, 1))
sketch1.addConstraint(Sketcher.Constraint("Coincident", 82, 2, 83, 1))
sketch1.addConstraint(Sketcher.Constraint("Coincident", 83, 2, 84, 1))
sketch1.addConstraint(Sketcher.Constraint("Coincident", 84, 2, 81, 1))
sketch1.addConstraint(Sketcher.Constraint("Horizontal", 9))
sketch1.addConstraint(Sketcher.Constraint("Vertical", 10))
sketch1.addConstraint(Sketcher.Constraint("Horizontal", 11))
sketch1.addConstraint(Sketcher.Constraint("Vertical", 12))
sketch1.addConstraint(Sketcher.Constraint("Vertical", 21))
sketch1.addConstraint(Sketcher.Constraint("Horizontal", 22))
sketch1.addConstraint(Sketcher.Constraint("Vertical", 23))
sketch1.addConstraint(Sketcher.Constraint("Horizontal", 24))
sketch1.addConstraint(Sketcher.Constraint("Vertical", 26))
sketch1.addConstraint(Sketcher.Constraint("Vertical", 28))
sketch1.addConstraint(Sketcher.Constraint("Vertical", 45))
sketch1.addConstraint(Sketcher.Constraint("Horizontal", 46))
sketch1.addConstraint(Sketcher.Constraint("Vertical", 47))
sketch1.addConstraint(Sketcher.Constraint("Horizontal", 48))
sketch1.addConstraint(Sketcher.Constraint("Horizontal", 65))
sketch1.addConstraint(Sketcher.Constraint("Vertical", 66))
sketch1.addConstraint(Sketcher.Constraint("Horizontal", 67))
sketch1.addConstraint(Sketcher.Constraint("Vertical", 68))
sketch1.addConstraint(Sketcher.Constraint("Coincident", 0, 3, -1, 1))
sketch1.addConstraint(Sketcher.Constraint("Coincident", 25, 3, -1, 1))
sketch1.addConstraint(Sketcher.Constraint("Coincident", 27, 3, -1, 1))
sketch1.addConstraint(Sketcher.Constraint("Equal", 25, 27))
sketch1.addConstraint(Sketcher.Constraint("Symmetric", 23, 2, 45, 2, -1, 1))
sketch1.addConstraint(Sketcher.Constraint("Symmetric", 21, 2, 47, 2, -1, 1))
sketch1.addConstraint(Sketcher.Constraint("Symmetric", 41, 2, 49, 2, -1, 1))
sketch1.addConstraint(Sketcher.Constraint("Symmetric", 42, 2, 50, 2, -1, 1))
sketch1.addConstraint(Sketcher.Constraint("Symmetric", 43, 2, 51, 2, -1, 1))
sketch1.addConstraint(Sketcher.Constraint("Symmetric", 44, 2, 52, 2, -1, 1))
sketch1.addConstraint(Sketcher.Constraint("Symmetric", 37, 2, 53, 2, -1, 1))
sketch1.addConstraint(Sketcher.Constraint("Symmetric", 38, 2, 54, 2, -1, 1))
sketch1.addConstraint(Sketcher.Constraint("Symmetric", 39, 2, 55, 2, -1, 1))
sketch1.addConstraint(Sketcher.Constraint("Symmetric", 40, 2, 56, 2, -1, 1))
sketch1.addConstraint(Sketcher.Constraint("Symmetric", 33, 2, 57, 2, -1, 1))
sketch1.addConstraint(Sketcher.Constraint("Symmetric", 34, 2, 58, 2, -1, 1))
sketch1.addConstraint(Sketcher.Constraint("Symmetric", 35, 2, 59, 2, -1, 1))
sketch1.addConstraint(Sketcher.Constraint("Symmetric", 36, 2, 60, 2, -1, 1))
sketch1.addConstraint(Sketcher.Constraint("Symmetric", 29, 2, 61, 2, -1, 1))
sketch1.addConstraint(Sketcher.Constraint("Symmetric", 30, 2, 62, 2, -1, 1))
sketch1.addConstraint(Sketcher.Constraint("Symmetric", 31, 2, 63, 2, -1, 1))
sketch1.addConstraint(Sketcher.Constraint("Symmetric", 32, 2, 64, 2, -1, 1))
sketch1.addConstraint(Sketcher.Constraint("Symmetric", 9, 2, 65, 2, -1, 1))
sketch1.addConstraint(Sketcher.Constraint("Symmetric", 11, 2, 67, 2, -1, 1))
sketch1.addConstraint(Sketcher.Constraint("Symmetric", 17, 2, 69, 2, -1, 1))
sketch1.addConstraint(Sketcher.Constraint("Symmetric", 18, 2, 70, 2, -1, 1))
sketch1.addConstraint(Sketcher.Constraint("Symmetric", 19, 2, 71, 2, -1, 1))
sketch1.addConstraint(Sketcher.Constraint("Symmetric", 20, 2, 72, 2, -1, 1))
sketch1.addConstraint(Sketcher.Constraint("Symmetric", 13, 2, 73, 2, -1, 1))
sketch1.addConstraint(Sketcher.Constraint("Symmetric", 14, 2, 74, 2, -1, 1))
sketch1.addConstraint(Sketcher.Constraint("Symmetric", 15, 2, 75, 2, -1, 1))
sketch1.addConstraint(Sketcher.Constraint("Symmetric", 16, 2, 76, 2, -1, 1))
sketch1.addConstraint(Sketcher.Constraint("Symmetric", 5, 2, 77, 2, -1, 1))
sketch1.addConstraint(Sketcher.Constraint("Symmetric", 6, 2, 78, 2, -1, 1))
sketch1.addConstraint(Sketcher.Constraint("Symmetric", 7, 2, 79, 2, -1, 1))
sketch1.addConstraint(Sketcher.Constraint("Symmetric", 8, 2, 80, 2, -1, 1))
sketch1.addConstraint(Sketcher.Constraint("Symmetric", 1, 2, 81, 2, -1, 1))
sketch1.addConstraint(Sketcher.Constraint("Symmetric", 2, 2, 82, 2, -1, 1))
sketch1.addConstraint(Sketcher.Constraint("Symmetric", 3, 2, 83, 2, -1, 1))
sketch1.addConstraint(Sketcher.Constraint("Symmetric", 4, 2, 84, 2, -1, 1))
sketch1.addConstraint(Sketcher.Constraint("Symmetric", 8, 2, 29, 2, -2))
sketch1.addConstraint(Sketcher.Constraint("Symmetric", 7, 2, 30, 2, -2))
sketch1.addConstraint(Sketcher.Constraint("Symmetric", 6, 2, 31, 2, -2))
sketch1.addConstraint(Sketcher.Constraint("Symmetric", 5, 2, 32, 2, -2))
sketch1.addConstraint(Sketcher.Constraint("Symmetric", 4, 2, 33, 2, -2))
sketch1.addConstraint(Sketcher.Constraint("Symmetric", 3, 2, 34, 2, -2))
sketch1.addConstraint(Sketcher.Constraint("Symmetric", 2, 2, 35, 2, -2))
sketch1.addConstraint(Sketcher.Constraint("Symmetric", 1, 2, 36, 2, -2))
sketch1.addConstraint(Sketcher.Constraint("Symmetric", 16, 2, 37, 2, -2))
sketch1.addConstraint(Sketcher.Constraint("Symmetric", 15, 2, 38, 2, -2))
sketch1.addConstraint(Sketcher.Constraint("Symmetric", 14, 2, 39, 2, -2))
sketch1.addConstraint(Sketcher.Constraint("Symmetric", 13, 2, 40, 2, -2))
sketch1.addConstraint(Sketcher.Constraint("Symmetric", 20, 2, 41, 2, -2))
sketch1.addConstraint(Sketcher.Constraint("Symmetric", 19, 2, 42, 2, -2))
sketch1.addConstraint(Sketcher.Constraint("Symmetric", 18, 2, 43, 2, -2))
sketch1.addConstraint(Sketcher.Constraint("Symmetric", 17, 2, 44, 2, -2))
sketch1.addConstraint(Sketcher.Constraint("Perpendicular", 1, 2))
sketch1.addConstraint(Sketcher.Constraint("Perpendicular", 2, 3))
sketch1.addConstraint(Sketcher.Constraint("Perpendicular", 3, 4))
sketch1.addConstraint(Sketcher.Constraint("Perpendicular", 5, 6))
sketch1.addConstraint(Sketcher.Constraint("Perpendicular", 6, 7))
sketch1.addConstraint(Sketcher.Constraint("Perpendicular", 7, 8))
sketch1.addConstraint(Sketcher.Constraint("Perpendicular", 13, 14))
sketch1.addConstraint(Sketcher.Constraint("Perpendicular", 14, 15))
sketch1.addConstraint(Sketcher.Constraint("Perpendicular", 15, 16))
sketch1.addConstraint(Sketcher.Constraint("Perpendicular", 17, 18))
sketch1.addConstraint(Sketcher.Constraint("Perpendicular", 18, 19))
sketch1.addConstraint(Sketcher.Constraint("Perpendicular", 19, 20))
sketch1.addConstraint(Sketcher.Constraint("Parallel", 20, 29))
sketch1.addConstraint(Sketcher.Constraint("Parallel", 16, 33))
sketch1.addConstraint(Sketcher.Constraint("Horizontal", 26, 2, 27, 2))
sketch1.addConstraint(Sketcher.Constraint("Horizontal", 22, 2, 45, 2))
sketch1.addConstraint(Sketcher.Constraint("Vertical", 12, 2, 65, 2))
sketch1.addConstraint(Sketcher.Constraint("Equal", 48, 10))
sketch1.addConstraint(Sketcher.Constraint("Equal", 67, 21))
sketch1.addConstraint(Sketcher.Constraint("Equal", 3, 5))
sketch1.addConstraint(Sketcher.Constraint("Equal", 4, 6))
sketch1.addConstraint(Sketcher.Constraint("Equal", 7, 13))
sketch1.addConstraint(Sketcher.Constraint("Equal", 8, 14))
sketch1.addConstraint(Sketcher.Constraint("Equal", 15, 17))
sketch1.addConstraint(Sketcher.Constraint("Equal", 16, 18))
sketch1.addConstraint(Sketcher.Constraint("Radius", 25, Q("2.7 mm")))
sketch1.addConstraint(Sketcher.Constraint("Diameter", 0, Q("25.75 mm")))
sketch1.addConstraint(Sketcher.Constraint("DistanceX", 9, 1, 9, 2, Q("1.5 mm")))
sketch1.addConstraint(Sketcher.Constraint("Distance", 1, Q("1.5 mm")))
sketch1.addConstraint(Sketcher.Constraint("Angle", 2, Q("125.9993 deg")))
sketch1.addConstraint(Sketcher.Constraint("Angle", 5, Q("17.999 deg")))
sketch1.addConstraint(Sketcher.Constraint("DistanceX", 22, 2, 22, 1, Q("3.925 mm")))
sketch1.addConstraint(Sketcher.Constraint("DistanceY", 8, 2, -1, 1, Q("11.05 mm")))
sketch1.addConstraint(Sketcher.Constraint("DistanceY", 10, 2, -1, 1, Q("7.45 mm")))
sketch1.addConstraint(Sketcher.Constraint("DistanceX", -1, 1, 17, 2, Q("11.05 mm")))
sketch1.addConstraint(Sketcher.Constraint("DistanceX", -1, 1, 22, 2, Q("7.45 mm")))
sketch1.addConstraint(Sketcher.Constraint("DistanceX", -1, 1, 25, 2, Q("1.85 mm")))
sketch1.addConstraint(Sketcher.Constraint("Distance", 2, Q("3.925 mm")))
sketch1.addConstraint(Sketcher.Constraint("DistanceY", 3, 2, -1, 1, Q("6.468 mm")))
sketch1.addConstraint(Sketcher.Constraint("DistanceX", -1, 1, 7, 2, Q("1.589 mm")))
sketch1.addConstraint(Sketcher.Constraint("DistanceX", -1, 1, 14, 2, Q("6.468 mm")))
sketch1.addConstraint(Sketcher.Constraint("DistanceY", 18, 2, -1, 1, Q("1.589 mm")))
sketch1.addConstraint(Sketcher.Constraint("DistanceX", -1, 1, 1, 2, Q("7.2928 mm")))
sketch1.addConstraint(Sketcher.Constraint("DistanceY", 13, 2, -1, 1, Q("6.0793 mm")))
sketch1.setExpression("Constraints[183]", "Params.sketch1_radius")
sketch1.setExpression("Constraints[184]", "Params.sketch1_diameter")
sketch1.setExpression("Constraints[185]", "Params.sketch1_width")
sketch1.setExpression("Constraints[186]", "Params.sketch1_length")
pad1 = body.newObject("PartDesign::Pad", "Pad")
pad1.Profile = sketch1
pad1.setExpression("Length", "Params.pad1_length")
pad1.Reversed = True

sketch2 = body.newObject("Sketcher::SketchObject", "Sketch001")
sketch2.AttachmentSupport = (doc.getObject("XZ_Plane"), [""])
sketch2.MapMode = "FlatFace"
sketch2.AttachmentOffset = App.Placement(App.Vector(0, 0, -2.1), App.Rotation())
sketch2.addGeometry(Part.LineSegment(App.Vector(-2.65, -2.2864, 0), App.Vector(-2.65, 2.2864, 0)), False)
sketch2.addGeometry(Part.ArcOfCircle(Part.Circle(App.Vector(0, 0, 0), App.Vector(0, 0, 1), 3.500018), math.radians(40.787377), math.radians(139.212623)), False)
sketch2.addGeometry(Part.LineSegment(App.Vector(2.65, 2.2864, 0), App.Vector(2.65, -2.2864, 0)), False)
sketch2.addGeometry(Part.ArcOfCircle(Part.Circle(App.Vector(0, 0, 0), App.Vector(0, 0, 1), 3.500018), math.radians(-139.212623), math.radians(-40.787377)), False)
sketch2.addGeometry(Part.ArcOfCircle(Part.Circle(App.Vector(0, 0, 0), App.Vector(0, 0, 1), 2.700003), math.radians(-133.250115), math.radians(-46.749885)), False)
sketch2.addGeometry(Part.LineSegment(App.Vector(1.85, -1.9666, 0), App.Vector(1.85, 1.9666, 0)), False)
sketch2.addGeometry(Part.ArcOfCircle(Part.Circle(App.Vector(0, 0, 0), App.Vector(0, 0, 1), 2.700003), math.radians(46.749885), math.radians(133.250115)), False)
sketch2.addGeometry(Part.LineSegment(App.Vector(-1.85, 1.9666, 0), App.Vector(-1.85, -1.9666, 0)), False)
sketch2.addConstraint(Sketcher.Constraint("Coincident", 0, 2, 1, 2))
sketch2.addConstraint(Sketcher.Constraint("Coincident", 1, 1, 2, 1))
sketch2.addConstraint(Sketcher.Constraint("Coincident", 2, 2, 3, 2))
sketch2.addConstraint(Sketcher.Constraint("Coincident", 3, 1, 0, 1))
sketch2.addConstraint(Sketcher.Constraint("Coincident", 4, 2, 5, 1))
sketch2.addConstraint(Sketcher.Constraint("Coincident", 5, 2, 6, 1))
sketch2.addConstraint(Sketcher.Constraint("Coincident", 6, 2, 7, 1))
sketch2.addConstraint(Sketcher.Constraint("Coincident", 7, 2, 4, 1))
sketch2.addConstraint(Sketcher.Constraint("Vertical", 0))
sketch2.addConstraint(Sketcher.Constraint("Vertical", 2))
sketch2.addConstraint(Sketcher.Constraint("Vertical", 5))
sketch2.addConstraint(Sketcher.Constraint("Vertical", 7))
sketch2.addConstraint(Sketcher.Constraint("Coincident", 1, 3, -1, 1))
sketch2.addConstraint(Sketcher.Constraint("Coincident", 3, 3, -1, 1))
sketch2.addConstraint(Sketcher.Constraint("Coincident", 4, 3, -1, 1))
sketch2.addConstraint(Sketcher.Constraint("Coincident", 6, 3, -1, 1))
sketch2.addConstraint(Sketcher.Constraint("Equal", 1, 3))
sketch2.addConstraint(Sketcher.Constraint("Equal", 4, 6))
sketch2.addConstraint(Sketcher.Constraint("Horizontal", 0, 2, 1, 1))
sketch2.addConstraint(Sketcher.Constraint("Horizontal", 5, 2, 6, 2))
sketch2.addConstraint(Sketcher.Constraint("Radius", 1, Q("3.5 mm")))
sketch2.addConstraint(Sketcher.Constraint("Radius", 4, Q("2.7 mm")))
sketch2.addConstraint(Sketcher.Constraint("DistanceX", 4, 2, 2, 2, Q("0.8 mm")))
sketch2.addConstraint(Sketcher.Constraint("DistanceX", 0, 2, 1, 1, Q("5.3 mm")))
sketch2.setExpression("Constraints[20]", "Params.sketch2_radius")
sketch2.setExpression("Constraints[21]", "Params.sketch2_radius2")
pad2 = body.newObject("PartDesign::Pad", "Pad001")
pad2.Profile = sketch2
pad2.setExpression("Length", "Params.pad2_length")
pad2.Reversed = True

doc.recompute()
